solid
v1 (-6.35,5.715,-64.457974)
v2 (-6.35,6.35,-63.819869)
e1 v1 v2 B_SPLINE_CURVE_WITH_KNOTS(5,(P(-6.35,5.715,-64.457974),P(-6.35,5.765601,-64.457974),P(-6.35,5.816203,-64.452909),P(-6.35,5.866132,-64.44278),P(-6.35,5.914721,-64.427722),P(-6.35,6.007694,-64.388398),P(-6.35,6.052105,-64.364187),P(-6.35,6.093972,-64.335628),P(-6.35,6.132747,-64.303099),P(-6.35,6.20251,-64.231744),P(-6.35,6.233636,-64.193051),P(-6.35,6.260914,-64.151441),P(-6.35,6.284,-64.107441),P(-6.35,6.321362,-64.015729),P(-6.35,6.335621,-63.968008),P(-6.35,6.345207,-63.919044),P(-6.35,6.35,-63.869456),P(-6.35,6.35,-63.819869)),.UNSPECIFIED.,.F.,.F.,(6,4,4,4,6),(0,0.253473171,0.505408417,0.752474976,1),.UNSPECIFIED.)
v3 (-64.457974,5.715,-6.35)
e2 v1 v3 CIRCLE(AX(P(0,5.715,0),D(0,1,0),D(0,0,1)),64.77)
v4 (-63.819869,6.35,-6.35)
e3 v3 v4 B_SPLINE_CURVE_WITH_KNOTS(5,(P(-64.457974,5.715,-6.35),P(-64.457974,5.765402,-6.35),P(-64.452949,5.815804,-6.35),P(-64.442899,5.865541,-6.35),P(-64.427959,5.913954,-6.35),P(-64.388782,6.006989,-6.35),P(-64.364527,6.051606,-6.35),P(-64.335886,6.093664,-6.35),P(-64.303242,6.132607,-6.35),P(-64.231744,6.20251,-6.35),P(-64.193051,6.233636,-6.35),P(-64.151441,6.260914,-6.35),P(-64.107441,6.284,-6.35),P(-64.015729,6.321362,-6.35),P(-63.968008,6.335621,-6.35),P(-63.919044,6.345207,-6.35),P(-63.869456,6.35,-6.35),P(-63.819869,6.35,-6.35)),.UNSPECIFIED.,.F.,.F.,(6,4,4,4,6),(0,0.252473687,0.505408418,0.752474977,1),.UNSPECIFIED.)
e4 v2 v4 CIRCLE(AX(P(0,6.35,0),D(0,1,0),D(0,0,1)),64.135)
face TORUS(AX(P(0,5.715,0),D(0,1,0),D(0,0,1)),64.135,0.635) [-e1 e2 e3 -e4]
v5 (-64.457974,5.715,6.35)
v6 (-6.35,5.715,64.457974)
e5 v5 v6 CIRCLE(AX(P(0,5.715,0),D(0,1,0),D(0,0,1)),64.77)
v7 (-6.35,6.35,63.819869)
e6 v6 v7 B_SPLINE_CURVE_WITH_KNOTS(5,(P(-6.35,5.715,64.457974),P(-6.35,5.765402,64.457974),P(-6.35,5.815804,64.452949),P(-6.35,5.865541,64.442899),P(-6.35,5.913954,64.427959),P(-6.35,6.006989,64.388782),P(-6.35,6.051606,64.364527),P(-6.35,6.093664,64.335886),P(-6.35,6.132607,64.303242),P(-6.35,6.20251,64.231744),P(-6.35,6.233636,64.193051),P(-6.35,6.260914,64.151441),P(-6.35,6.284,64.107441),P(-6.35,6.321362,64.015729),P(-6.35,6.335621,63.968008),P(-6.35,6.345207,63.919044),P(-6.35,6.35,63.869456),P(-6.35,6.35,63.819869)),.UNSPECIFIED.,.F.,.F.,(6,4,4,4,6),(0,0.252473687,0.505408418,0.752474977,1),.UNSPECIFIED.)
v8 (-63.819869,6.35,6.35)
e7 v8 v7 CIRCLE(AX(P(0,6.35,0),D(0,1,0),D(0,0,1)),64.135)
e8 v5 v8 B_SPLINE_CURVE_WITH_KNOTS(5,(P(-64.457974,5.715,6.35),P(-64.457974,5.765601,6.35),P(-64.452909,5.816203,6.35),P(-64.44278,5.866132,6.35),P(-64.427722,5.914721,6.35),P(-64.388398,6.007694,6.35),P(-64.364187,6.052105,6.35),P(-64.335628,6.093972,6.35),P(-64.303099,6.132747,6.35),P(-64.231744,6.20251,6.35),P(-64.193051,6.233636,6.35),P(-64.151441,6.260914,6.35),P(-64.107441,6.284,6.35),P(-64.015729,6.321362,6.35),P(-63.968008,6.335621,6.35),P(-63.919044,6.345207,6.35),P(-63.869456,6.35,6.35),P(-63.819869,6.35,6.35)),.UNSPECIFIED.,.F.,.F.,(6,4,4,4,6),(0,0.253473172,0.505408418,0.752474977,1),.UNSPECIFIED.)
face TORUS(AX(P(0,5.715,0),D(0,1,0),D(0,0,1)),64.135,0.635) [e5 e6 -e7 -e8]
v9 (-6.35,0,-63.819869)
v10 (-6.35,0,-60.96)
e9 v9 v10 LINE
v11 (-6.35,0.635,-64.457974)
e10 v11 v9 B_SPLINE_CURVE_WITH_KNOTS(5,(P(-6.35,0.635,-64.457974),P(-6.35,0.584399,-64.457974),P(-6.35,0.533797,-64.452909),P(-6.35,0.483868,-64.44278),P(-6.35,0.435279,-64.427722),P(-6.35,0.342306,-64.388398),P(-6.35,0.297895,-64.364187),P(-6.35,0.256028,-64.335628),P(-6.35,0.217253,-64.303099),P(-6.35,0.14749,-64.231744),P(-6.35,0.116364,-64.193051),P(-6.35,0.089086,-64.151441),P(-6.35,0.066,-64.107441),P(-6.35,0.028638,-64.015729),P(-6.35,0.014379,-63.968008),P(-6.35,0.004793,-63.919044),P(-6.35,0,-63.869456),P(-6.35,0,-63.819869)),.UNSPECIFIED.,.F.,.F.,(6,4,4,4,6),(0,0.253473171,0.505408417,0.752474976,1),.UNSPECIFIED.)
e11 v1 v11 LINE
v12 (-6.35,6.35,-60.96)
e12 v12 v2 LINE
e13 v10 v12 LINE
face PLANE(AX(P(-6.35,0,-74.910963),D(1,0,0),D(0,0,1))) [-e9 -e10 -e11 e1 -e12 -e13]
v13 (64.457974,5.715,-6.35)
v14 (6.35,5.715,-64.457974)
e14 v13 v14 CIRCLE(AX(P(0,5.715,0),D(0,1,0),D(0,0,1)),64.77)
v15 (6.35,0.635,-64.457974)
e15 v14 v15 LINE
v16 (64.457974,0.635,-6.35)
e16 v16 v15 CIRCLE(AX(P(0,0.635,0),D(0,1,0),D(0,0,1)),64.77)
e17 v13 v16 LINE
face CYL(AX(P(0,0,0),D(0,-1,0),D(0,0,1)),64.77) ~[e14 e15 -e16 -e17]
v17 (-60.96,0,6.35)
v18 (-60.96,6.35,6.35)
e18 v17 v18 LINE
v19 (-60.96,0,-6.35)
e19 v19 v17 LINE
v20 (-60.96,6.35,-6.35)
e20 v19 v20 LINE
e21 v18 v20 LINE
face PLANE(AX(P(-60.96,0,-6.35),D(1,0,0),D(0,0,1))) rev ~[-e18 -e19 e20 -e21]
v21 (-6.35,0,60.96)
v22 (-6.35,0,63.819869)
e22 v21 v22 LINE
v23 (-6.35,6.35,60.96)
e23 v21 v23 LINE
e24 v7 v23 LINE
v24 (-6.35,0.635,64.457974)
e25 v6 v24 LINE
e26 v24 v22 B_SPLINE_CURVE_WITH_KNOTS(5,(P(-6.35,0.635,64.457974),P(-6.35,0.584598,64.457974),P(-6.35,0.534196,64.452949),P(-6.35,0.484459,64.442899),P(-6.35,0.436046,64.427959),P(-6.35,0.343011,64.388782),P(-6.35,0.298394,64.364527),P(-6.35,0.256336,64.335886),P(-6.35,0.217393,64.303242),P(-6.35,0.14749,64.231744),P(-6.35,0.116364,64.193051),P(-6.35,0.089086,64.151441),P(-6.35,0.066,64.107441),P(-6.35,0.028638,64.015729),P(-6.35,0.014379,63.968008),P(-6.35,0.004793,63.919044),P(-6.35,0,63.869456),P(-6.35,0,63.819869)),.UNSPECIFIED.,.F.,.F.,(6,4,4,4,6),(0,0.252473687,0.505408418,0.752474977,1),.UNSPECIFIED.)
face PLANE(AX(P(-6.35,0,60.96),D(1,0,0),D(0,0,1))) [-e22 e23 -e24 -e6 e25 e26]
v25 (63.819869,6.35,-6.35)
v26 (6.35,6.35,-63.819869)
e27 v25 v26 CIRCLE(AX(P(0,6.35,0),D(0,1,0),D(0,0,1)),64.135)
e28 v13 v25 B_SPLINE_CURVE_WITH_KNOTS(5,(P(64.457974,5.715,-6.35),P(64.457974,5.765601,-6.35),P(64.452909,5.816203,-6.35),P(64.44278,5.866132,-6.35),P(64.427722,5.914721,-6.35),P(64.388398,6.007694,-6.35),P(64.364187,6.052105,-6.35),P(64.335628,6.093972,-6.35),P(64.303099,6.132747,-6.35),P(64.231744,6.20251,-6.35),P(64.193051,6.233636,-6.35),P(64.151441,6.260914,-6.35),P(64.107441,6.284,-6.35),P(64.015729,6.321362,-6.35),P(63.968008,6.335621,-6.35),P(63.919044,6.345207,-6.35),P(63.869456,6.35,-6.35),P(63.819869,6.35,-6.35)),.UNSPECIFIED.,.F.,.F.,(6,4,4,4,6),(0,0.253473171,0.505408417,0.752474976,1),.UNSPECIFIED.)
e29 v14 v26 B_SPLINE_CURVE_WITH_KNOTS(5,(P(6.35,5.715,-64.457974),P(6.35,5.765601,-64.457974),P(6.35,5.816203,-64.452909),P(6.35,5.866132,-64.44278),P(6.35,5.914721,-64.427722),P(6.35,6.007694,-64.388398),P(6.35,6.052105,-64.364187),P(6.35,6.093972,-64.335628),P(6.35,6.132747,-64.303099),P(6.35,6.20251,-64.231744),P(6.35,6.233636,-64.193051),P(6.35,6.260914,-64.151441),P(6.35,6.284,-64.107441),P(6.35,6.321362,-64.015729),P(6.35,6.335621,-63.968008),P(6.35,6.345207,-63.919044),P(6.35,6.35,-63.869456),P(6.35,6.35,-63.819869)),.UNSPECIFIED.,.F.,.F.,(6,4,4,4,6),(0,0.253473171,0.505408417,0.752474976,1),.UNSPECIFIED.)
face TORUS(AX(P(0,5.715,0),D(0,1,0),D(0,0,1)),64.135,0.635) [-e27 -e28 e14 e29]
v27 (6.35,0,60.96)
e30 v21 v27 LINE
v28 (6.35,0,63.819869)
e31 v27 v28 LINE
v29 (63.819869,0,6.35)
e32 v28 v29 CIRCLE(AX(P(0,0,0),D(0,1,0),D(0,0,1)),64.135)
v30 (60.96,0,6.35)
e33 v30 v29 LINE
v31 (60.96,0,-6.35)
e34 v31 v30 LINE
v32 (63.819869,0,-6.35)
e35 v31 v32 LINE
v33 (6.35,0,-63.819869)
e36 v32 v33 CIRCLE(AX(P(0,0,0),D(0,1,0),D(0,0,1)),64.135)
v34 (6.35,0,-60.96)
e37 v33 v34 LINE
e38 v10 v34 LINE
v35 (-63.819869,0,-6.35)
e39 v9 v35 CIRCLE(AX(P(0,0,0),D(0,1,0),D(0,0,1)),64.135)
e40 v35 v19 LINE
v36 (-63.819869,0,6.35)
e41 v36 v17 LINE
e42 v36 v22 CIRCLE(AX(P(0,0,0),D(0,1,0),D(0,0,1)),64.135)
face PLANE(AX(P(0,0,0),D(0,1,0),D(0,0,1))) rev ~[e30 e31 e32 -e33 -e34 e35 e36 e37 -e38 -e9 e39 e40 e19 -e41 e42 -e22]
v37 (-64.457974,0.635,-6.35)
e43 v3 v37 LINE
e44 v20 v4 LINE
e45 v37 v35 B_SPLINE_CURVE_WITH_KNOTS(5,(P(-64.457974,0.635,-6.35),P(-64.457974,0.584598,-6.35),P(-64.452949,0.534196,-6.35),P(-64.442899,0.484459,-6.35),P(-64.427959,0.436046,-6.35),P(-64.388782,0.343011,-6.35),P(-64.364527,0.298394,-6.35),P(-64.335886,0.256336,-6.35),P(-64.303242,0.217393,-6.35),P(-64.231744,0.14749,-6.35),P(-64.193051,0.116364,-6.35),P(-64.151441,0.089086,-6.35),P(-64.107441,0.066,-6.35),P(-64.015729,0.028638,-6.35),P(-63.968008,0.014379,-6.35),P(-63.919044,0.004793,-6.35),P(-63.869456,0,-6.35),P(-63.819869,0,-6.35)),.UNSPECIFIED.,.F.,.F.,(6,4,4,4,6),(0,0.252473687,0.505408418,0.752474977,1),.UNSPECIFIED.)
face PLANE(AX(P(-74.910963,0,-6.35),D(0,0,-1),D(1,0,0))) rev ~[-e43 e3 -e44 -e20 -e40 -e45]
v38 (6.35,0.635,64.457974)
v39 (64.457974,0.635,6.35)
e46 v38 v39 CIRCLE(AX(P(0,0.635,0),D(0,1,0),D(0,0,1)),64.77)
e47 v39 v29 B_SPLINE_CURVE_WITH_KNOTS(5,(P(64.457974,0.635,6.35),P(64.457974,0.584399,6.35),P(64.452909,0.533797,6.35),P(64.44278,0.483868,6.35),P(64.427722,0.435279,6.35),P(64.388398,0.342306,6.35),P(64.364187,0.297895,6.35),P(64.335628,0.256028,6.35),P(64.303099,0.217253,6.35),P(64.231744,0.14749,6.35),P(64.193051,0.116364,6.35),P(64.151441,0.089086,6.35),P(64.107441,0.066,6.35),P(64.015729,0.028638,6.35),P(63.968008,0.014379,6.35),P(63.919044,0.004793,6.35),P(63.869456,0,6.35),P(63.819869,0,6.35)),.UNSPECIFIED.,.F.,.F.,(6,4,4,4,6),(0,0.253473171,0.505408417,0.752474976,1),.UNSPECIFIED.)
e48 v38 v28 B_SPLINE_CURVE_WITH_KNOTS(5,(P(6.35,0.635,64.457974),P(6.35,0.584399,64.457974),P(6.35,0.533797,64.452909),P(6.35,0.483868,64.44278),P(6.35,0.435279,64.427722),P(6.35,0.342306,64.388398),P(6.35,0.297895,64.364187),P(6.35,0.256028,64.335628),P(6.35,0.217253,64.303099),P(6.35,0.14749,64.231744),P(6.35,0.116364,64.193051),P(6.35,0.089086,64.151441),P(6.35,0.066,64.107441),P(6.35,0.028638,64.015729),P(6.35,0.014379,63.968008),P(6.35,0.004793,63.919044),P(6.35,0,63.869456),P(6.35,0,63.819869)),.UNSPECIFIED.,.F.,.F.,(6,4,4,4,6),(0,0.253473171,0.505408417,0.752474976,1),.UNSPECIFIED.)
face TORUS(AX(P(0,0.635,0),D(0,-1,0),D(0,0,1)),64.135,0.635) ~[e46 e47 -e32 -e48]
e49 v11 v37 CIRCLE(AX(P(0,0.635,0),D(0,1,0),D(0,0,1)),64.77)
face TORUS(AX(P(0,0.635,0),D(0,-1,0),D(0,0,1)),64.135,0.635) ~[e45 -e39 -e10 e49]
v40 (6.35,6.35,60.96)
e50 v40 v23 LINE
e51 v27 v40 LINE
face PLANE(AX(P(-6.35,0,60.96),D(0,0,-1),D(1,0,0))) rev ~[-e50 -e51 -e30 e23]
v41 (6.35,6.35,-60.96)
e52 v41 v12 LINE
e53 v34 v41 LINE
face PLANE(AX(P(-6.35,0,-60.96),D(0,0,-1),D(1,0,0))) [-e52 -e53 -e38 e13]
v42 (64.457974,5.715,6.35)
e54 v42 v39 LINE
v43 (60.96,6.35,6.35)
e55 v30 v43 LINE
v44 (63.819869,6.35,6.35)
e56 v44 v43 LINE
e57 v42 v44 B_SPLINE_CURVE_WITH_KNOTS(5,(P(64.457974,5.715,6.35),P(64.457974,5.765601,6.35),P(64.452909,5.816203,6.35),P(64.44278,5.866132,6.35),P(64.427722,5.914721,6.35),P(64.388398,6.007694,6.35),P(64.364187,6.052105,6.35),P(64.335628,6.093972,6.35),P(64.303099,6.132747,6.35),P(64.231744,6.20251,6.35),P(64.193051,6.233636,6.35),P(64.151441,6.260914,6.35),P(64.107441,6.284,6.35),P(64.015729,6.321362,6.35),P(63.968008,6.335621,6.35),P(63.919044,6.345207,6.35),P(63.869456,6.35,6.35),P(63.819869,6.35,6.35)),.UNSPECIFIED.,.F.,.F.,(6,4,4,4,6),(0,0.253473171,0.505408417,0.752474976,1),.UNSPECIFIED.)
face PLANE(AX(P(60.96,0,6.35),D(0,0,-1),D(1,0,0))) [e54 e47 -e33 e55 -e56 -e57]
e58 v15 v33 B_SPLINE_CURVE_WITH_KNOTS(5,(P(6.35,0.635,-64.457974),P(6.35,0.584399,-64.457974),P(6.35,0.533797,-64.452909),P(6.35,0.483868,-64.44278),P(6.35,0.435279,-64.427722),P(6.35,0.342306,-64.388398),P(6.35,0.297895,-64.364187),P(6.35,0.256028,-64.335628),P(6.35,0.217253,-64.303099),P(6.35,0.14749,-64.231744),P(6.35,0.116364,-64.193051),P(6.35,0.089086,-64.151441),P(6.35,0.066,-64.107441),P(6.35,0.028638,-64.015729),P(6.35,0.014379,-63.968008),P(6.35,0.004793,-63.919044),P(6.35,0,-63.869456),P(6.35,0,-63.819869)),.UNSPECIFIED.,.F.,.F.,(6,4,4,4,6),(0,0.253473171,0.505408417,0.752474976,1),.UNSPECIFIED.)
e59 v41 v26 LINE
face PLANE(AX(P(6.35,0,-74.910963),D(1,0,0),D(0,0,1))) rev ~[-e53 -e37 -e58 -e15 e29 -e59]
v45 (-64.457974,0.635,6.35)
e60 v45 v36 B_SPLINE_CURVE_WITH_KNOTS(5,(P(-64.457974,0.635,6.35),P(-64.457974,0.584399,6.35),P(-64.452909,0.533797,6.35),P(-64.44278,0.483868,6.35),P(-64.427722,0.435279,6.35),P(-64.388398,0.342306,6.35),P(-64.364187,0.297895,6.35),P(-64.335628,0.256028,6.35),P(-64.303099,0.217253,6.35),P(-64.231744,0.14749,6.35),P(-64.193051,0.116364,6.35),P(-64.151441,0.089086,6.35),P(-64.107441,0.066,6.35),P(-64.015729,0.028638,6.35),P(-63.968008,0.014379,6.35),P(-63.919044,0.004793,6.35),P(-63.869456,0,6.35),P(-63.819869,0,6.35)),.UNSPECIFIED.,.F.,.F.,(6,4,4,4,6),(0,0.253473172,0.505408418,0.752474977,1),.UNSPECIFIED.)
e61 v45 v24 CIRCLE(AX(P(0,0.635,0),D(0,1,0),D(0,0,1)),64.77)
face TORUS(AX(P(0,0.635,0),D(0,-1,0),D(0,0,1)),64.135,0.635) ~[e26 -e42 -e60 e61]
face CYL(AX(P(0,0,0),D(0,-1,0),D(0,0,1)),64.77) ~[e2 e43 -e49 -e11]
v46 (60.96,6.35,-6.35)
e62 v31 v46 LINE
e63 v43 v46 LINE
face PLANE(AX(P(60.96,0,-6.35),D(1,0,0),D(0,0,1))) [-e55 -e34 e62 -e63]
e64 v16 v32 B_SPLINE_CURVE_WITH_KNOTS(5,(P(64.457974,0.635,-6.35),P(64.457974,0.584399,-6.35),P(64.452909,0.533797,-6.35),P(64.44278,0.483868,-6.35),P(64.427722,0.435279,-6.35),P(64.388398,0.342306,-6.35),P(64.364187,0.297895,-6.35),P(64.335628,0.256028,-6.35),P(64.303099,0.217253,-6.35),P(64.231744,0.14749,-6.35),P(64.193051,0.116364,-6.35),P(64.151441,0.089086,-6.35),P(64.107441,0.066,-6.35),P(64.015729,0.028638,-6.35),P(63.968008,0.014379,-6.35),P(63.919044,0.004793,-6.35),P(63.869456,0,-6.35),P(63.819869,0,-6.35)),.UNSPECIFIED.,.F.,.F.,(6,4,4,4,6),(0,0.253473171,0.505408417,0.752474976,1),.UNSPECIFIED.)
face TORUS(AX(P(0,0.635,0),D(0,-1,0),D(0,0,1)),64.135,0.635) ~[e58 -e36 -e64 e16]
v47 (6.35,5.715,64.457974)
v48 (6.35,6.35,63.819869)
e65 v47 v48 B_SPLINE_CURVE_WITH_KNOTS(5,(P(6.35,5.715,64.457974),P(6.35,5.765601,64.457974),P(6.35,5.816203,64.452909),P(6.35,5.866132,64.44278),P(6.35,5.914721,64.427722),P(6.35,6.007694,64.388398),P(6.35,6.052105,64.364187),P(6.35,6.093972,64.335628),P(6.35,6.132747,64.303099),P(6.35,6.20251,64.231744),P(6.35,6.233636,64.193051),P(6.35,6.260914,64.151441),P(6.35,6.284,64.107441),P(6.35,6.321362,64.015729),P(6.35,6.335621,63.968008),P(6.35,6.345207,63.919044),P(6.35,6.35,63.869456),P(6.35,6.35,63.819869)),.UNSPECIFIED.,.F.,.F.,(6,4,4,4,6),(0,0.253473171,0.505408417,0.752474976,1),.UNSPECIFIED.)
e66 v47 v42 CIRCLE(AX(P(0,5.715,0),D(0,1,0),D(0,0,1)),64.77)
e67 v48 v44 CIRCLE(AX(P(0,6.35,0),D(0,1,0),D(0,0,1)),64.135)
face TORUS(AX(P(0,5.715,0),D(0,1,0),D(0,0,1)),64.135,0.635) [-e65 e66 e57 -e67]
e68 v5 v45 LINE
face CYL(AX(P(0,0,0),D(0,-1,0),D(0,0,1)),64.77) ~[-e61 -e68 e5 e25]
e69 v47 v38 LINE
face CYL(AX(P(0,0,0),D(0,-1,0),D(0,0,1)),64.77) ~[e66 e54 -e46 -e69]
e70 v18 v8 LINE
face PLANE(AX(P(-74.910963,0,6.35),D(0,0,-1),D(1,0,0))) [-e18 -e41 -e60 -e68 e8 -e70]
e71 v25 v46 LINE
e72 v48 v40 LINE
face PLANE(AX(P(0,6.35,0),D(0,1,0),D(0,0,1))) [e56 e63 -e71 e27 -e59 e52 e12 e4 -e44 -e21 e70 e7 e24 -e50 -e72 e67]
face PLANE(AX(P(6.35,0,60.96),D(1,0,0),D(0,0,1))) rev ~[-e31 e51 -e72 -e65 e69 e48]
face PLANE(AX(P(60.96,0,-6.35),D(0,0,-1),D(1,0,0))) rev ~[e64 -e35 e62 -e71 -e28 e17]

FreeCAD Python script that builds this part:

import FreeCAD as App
import Part
import Sketcher
from FreeCAD import Vector
Q = App.Units.Quantity


def edges_at(feature, points):
    """Names of the edges that pass closest to the given points."""
    edges = feature.Shape.Edges
    near = lambda p: min(range(len(edges)), key=lambda i: edges[i].distToShape(Part.Vertex(*p))[0])
    return sorted({f"Edge{near(p) + 1}" for p in points})


def add_polygon(sketch, points):
    """Adds a closed chain of lines whose ends are joined by coincident constraints."""
    first, n = sketch.GeometryCount, len(points)
    for a, b in zip(points, points[1:] + points[:1]):
        sketch.addGeometry(Part.LineSegment(App.Vector(*a, 0), App.Vector(*b, 0)), False)
    for i in range(n):
        sketch.addConstraint(Sketcher.Constraint("Coincident", first + i, 2, first + (i + 1) % n, 1))

doc = App.newDocument("Part")
params = doc.addObject("Spreadsheet::Sheet", "Params")
for row, (alias, value) in enumerate([
    ("sketch1_diameter", "5.1 in"),
    ("pad1_length", "0.25 in"),
    ("fillet_radius", "0.025 in"),
    ("sketch2_width", "0.5 in"),
], start=1):
    params.set(f"A{row}", alias)
    params.set(f"B{row}", "=" + value)
    params.setAlias(f"B{row}", alias)

body = doc.addObject("PartDesign::Body", "Body")

sketch1 = doc.addObject("Sketcher::SketchObject", "Sketch")
body.addObject(sketch1)
sketch1.AttachmentSupport = (doc.XZ_Plane, [""])
sketch1.MapMode = "FlatFace"
sketch1.addGeometry(Part.Circle(Vector(0, 0, 0), Vector(0, 0, 1), 65), False)
sketch1.addConstraint([
    Sketcher.Constraint("Coincident", 0, 3, -1, 1),
    Sketcher.Constraint("Diameter", 0, Q("5.1 in")),
])
sketch1.setExpression("Constraints[1]", "Params.sketch1_diameter")
pad1 = doc.addObject("PartDesign::Pad", "Pad")
body.addObject(pad1)
pad1.Profile = sketch1
pad1.setExpression("Length", "Params.pad1_length")
pad1.Reversed = True
doc.recompute()

fillet = doc.addObject("PartDesign::Fillet", "Fillet")
body.addObject(fillet)
fillet.Base = (pad1, edges_at(pad1, [(0, 0, -64.77), (0, 6.35, -64.77)]))
fillet.setExpression("Radius", "Params.fillet_radius")

sketch2 = doc.addObject("Sketcher::SketchObject", "Sketch001")
body.addObject(sketch2)
sketch2.AttachmentSupport = (doc.XZ_Plane, [""])
sketch2.MapMode = "FlatFace"
add_polygon(sketch2, [(61, 6), (61, -6), (75, -6), (75, 6)])
add_polygon(sketch2, [(-6, -61), (-6, -75), (6, -75), (6, -61)])
add_polygon(sketch2, [(-75, 6), (-75, -6), (-61, -6), (-61, 6)])
add_polygon(sketch2, [(-6, 75), (-6, 61), (6, 61), (6, 75)])
sketch2.addConstraint([
    Sketcher.Constraint("Vertical", 0),
    Sketcher.Constraint("Horizontal", 1),
    Sketcher.Constraint("Vertical", 2),
    Sketcher.Constraint("Horizontal", 3),
    Sketcher.Constraint("Vertical", 4),
    Sketcher.Constraint("Horizontal", 5),
    Sketcher.Constraint("Vertical", 6),
    Sketcher.Constraint("Horizontal", 7),
    Sketcher.Constraint("Vertical", 8),
    Sketcher.Constraint("Horizontal", 9),
    Sketcher.Constraint("Vertical", 10),
    Sketcher.Constraint("Horizontal", 11),
    Sketcher.Constraint("Vertical", 12),
    Sketcher.Constraint("Horizontal", 13),
    Sketcher.Constraint("Vertical", 14),
    Sketcher.Constraint("Horizontal", 15),
    Sketcher.Constraint("Symmetric", 2, 2, 8, 2, -1, 1),
    Sketcher.Constraint("Symmetric", 0, 2, 10, 2, -1, 1),
    Sketcher.Constraint("Symmetric", 6, 2, 12, 2, -1, 1),
    Sketcher.Constraint("Symmetric", 4, 2, 14, 2, -1, 1),
    Sketcher.Constraint("Horizontal", 1, 2, 8, 2),
    Sketcher.Constraint("Vertical", 7, 2, 12, 2),
    Sketcher.Constraint("Equal", 15, 0),
    Sketcher.Constraint("Equal", 11, 4),
    Sketcher.Constraint("DistanceX", 5, 1, 5, 2, Q("0.5 in")),
    Sketcher.Constraint("DistanceX", -1, 1, 0, 2, Q("2.4 in")),
    Sketcher.Constraint("DistanceY", 6, 2, -1, 1, Q("2.4 in")),
    Sketcher.Constraint("DistanceX", 1, 1, 1, 2, Q("13.950963 mm")),
])
sketch2.setExpression("Constraints[40]", "Params.sketch2_width")
pocket1 = doc.addObject("PartDesign::Pocket", "Pocket")
body.addObject(pocket1)
pocket1.Profile = sketch2
pocket1.Type = "ThroughAll"

doc.recompute()
